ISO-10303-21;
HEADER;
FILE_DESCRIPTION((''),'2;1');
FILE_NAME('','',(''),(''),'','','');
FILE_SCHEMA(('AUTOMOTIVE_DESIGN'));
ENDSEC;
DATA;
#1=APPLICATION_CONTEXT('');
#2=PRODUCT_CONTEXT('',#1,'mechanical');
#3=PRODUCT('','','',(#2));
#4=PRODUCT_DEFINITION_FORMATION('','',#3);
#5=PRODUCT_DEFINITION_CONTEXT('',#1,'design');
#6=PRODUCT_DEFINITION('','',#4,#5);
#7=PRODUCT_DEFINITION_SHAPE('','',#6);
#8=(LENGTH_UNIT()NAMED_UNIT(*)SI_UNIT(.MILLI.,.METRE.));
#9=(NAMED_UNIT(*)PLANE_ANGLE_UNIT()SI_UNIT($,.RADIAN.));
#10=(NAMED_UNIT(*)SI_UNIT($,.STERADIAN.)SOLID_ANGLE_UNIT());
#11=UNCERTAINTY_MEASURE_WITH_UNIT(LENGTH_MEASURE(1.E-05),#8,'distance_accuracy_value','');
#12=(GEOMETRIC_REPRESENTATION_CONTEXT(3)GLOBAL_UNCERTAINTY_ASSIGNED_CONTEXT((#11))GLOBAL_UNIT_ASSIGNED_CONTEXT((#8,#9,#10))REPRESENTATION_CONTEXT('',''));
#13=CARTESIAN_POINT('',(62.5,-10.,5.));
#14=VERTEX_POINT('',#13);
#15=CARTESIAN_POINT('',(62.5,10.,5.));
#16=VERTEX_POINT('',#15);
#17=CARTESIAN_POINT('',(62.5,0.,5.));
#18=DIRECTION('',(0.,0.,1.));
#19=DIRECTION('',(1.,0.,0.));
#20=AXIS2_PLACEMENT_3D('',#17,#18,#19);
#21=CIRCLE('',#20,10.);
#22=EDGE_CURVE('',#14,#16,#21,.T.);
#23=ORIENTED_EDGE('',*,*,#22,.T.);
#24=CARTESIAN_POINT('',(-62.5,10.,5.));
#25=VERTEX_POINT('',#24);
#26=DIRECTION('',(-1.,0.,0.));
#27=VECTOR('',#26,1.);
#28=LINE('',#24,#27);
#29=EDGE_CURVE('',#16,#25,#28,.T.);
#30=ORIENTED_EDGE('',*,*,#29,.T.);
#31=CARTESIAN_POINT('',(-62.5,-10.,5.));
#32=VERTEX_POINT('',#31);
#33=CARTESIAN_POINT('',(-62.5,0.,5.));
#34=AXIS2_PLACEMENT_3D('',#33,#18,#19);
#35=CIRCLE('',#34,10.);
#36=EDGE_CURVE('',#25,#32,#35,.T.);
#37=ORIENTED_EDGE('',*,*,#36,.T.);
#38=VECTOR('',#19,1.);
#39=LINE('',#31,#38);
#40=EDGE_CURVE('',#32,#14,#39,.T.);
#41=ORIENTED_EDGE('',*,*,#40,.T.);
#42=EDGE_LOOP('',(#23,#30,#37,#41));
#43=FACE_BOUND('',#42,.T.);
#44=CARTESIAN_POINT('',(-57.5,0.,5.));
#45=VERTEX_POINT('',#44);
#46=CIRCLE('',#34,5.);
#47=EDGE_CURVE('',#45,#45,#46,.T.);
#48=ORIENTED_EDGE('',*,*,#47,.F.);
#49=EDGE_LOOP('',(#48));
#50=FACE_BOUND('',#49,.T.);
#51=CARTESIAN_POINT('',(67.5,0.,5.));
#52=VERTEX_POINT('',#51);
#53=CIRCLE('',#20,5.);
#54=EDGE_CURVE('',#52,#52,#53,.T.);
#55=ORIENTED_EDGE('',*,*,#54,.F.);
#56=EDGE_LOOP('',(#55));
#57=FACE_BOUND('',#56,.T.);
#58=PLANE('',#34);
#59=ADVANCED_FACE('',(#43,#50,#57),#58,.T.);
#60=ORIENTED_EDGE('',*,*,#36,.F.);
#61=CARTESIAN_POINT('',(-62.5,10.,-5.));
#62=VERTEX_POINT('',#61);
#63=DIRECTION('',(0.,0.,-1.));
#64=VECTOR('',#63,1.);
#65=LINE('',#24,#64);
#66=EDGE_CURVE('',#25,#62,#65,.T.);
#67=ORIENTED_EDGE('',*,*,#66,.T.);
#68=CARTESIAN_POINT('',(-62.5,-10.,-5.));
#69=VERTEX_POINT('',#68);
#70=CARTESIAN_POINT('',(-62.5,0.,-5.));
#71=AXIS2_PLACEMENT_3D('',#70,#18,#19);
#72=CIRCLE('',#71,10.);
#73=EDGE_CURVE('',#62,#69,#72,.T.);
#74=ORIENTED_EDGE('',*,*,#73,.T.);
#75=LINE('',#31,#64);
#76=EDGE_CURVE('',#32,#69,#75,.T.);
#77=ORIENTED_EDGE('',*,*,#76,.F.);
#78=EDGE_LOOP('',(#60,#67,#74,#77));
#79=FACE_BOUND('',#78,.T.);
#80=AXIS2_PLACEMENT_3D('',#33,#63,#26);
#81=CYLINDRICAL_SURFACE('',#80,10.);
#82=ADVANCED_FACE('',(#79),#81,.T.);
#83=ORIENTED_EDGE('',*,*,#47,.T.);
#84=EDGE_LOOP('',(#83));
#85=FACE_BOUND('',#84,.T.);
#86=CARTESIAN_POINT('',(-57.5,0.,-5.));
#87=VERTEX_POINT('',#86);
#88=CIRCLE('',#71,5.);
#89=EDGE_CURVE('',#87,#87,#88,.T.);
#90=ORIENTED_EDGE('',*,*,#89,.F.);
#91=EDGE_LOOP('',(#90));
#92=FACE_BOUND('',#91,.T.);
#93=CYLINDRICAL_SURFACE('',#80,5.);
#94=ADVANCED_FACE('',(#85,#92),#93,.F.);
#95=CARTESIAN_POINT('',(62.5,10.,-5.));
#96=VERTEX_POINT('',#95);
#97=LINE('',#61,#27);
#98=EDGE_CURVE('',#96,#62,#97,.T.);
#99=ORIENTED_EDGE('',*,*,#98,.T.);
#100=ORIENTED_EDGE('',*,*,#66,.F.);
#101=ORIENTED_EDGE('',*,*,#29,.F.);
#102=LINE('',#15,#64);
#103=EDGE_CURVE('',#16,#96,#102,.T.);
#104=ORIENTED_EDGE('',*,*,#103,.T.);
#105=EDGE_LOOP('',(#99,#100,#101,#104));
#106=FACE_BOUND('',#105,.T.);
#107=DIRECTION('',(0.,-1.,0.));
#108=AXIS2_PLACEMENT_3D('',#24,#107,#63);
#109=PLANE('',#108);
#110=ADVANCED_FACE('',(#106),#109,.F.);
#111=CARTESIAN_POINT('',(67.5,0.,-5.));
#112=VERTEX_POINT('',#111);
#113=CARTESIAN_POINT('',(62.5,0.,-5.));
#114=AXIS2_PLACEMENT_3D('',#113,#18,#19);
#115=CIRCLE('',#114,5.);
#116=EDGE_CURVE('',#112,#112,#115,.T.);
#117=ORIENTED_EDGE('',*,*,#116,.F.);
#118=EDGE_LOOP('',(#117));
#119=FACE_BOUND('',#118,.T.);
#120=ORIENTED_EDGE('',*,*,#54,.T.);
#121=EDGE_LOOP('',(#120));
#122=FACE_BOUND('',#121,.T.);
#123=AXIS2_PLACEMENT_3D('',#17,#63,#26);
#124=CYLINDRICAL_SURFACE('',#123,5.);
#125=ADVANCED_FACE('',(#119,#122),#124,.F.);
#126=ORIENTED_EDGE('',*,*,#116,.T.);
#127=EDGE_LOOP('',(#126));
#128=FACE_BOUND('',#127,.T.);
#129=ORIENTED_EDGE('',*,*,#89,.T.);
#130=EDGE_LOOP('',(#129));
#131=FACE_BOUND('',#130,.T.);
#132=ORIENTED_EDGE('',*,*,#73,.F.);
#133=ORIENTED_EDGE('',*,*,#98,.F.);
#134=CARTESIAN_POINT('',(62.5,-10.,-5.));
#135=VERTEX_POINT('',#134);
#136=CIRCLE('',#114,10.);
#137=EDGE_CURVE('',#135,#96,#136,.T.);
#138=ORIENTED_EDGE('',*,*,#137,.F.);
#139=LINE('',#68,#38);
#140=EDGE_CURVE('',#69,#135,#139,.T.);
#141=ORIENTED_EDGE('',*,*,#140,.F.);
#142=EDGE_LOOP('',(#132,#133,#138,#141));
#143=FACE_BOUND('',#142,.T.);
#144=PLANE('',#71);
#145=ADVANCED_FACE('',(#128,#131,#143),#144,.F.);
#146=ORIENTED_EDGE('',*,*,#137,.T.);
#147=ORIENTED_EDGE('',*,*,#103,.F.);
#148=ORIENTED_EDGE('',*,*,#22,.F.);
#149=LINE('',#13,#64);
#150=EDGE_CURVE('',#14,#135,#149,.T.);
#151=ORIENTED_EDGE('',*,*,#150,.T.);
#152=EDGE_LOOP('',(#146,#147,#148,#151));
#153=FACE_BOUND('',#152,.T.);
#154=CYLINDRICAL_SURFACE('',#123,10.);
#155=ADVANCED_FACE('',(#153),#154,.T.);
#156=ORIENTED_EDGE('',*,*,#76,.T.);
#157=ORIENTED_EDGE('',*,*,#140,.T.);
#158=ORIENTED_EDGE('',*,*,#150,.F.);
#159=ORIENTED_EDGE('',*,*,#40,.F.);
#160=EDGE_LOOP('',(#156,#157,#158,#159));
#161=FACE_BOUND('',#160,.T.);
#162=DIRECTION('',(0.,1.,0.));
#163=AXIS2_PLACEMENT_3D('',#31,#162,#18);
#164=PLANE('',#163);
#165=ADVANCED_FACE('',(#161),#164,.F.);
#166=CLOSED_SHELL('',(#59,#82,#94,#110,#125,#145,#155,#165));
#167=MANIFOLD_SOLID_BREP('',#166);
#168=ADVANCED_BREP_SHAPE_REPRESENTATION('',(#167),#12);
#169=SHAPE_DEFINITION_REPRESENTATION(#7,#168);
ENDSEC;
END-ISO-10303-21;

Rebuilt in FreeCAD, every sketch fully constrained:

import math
import FreeCAD as App
import Part
import Sketcher

V = App.Vector

doc = App.newDocument("Part")
body = doc.addObject("PartDesign::Body", "Body")

# Sketch on XY plane
sketch1 = body.newObject("Sketcher::SketchObject", "Sketch")
sketch1.AttachmentSupport = (doc.getObject("XY_Plane"), [""])
sketch1.MapMode = "FlatFace"
sketch1.addGeometry(Part.LineSegment(V(62.5, 10, 0), V(-62.5, 10, 0)), False)
sketch1.addGeometry(Part.ArcOfCircle(Part.Circle(V(-62.5, 0, 0), V(0, 0, 1), 10), math.radians(90), math.radians(270)), False)
sketch1.addGeometry(Part.LineSegment(V(-62.5, -10, 0), V(62.5, -10, 0)), False)
sketch1.addGeometry(Part.ArcOfCircle(Part.Circle(V(62.5, 0, 0), V(0, 0, 1), 10), math.radians(-90), math.radians(90)), False)
sketch1.addGeometry(Part.Circle(V(62.5, 0, 0), V(0, 0, 1), 5), False)
sketch1.addGeometry(Part.Circle(V(-62.5, 0, 0), V(0, 0, 1), 5), False)
sketch1.addConstraint(Sketcher.Constraint("Tangent", 0, 2, 1, 1))
sketch1.addConstraint(Sketcher.Constraint("Tangent", 1, 2, 2, 1))
sketch1.addConstraint(Sketcher.Constraint("Tangent", 2, 2, 3, 1))
sketch1.addConstraint(Sketcher.Constraint("Tangent", 3, 2, 0, 1))
sketch1.addConstraint(Sketcher.Constraint("Horizontal", 0))
sketch1.addConstraint(Sketcher.Constraint("Horizontal", 2))
sketch1.addConstraint(Sketcher.Constraint("Coincident", 4, 3, 3, 3))
sketch1.addConstraint(Sketcher.Constraint("Coincident", 5, 3, 1, 3))
sketch1.addConstraint(Sketcher.Constraint("Equal", 4, 5))
sketch1.addConstraint(Sketcher.Constraint("Symmetric", 1, 3, 3, 3, -1, 1))
sketch1.addConstraint(Sketcher.Constraint("Diameter", 4, 10.0))
sketch1.addConstraint(Sketcher.Constraint("Radius", 1, 10.0))
sketch1.addConstraint(Sketcher.Constraint("DistanceX", 0, 2, 0, 1, 125.0))
pad1 = body.newObject("PartDesign::Pad", "Pad")
pad1.Profile = sketch1
pad1.Length = 10
pad1.Midplane = True

doc.recompute()
